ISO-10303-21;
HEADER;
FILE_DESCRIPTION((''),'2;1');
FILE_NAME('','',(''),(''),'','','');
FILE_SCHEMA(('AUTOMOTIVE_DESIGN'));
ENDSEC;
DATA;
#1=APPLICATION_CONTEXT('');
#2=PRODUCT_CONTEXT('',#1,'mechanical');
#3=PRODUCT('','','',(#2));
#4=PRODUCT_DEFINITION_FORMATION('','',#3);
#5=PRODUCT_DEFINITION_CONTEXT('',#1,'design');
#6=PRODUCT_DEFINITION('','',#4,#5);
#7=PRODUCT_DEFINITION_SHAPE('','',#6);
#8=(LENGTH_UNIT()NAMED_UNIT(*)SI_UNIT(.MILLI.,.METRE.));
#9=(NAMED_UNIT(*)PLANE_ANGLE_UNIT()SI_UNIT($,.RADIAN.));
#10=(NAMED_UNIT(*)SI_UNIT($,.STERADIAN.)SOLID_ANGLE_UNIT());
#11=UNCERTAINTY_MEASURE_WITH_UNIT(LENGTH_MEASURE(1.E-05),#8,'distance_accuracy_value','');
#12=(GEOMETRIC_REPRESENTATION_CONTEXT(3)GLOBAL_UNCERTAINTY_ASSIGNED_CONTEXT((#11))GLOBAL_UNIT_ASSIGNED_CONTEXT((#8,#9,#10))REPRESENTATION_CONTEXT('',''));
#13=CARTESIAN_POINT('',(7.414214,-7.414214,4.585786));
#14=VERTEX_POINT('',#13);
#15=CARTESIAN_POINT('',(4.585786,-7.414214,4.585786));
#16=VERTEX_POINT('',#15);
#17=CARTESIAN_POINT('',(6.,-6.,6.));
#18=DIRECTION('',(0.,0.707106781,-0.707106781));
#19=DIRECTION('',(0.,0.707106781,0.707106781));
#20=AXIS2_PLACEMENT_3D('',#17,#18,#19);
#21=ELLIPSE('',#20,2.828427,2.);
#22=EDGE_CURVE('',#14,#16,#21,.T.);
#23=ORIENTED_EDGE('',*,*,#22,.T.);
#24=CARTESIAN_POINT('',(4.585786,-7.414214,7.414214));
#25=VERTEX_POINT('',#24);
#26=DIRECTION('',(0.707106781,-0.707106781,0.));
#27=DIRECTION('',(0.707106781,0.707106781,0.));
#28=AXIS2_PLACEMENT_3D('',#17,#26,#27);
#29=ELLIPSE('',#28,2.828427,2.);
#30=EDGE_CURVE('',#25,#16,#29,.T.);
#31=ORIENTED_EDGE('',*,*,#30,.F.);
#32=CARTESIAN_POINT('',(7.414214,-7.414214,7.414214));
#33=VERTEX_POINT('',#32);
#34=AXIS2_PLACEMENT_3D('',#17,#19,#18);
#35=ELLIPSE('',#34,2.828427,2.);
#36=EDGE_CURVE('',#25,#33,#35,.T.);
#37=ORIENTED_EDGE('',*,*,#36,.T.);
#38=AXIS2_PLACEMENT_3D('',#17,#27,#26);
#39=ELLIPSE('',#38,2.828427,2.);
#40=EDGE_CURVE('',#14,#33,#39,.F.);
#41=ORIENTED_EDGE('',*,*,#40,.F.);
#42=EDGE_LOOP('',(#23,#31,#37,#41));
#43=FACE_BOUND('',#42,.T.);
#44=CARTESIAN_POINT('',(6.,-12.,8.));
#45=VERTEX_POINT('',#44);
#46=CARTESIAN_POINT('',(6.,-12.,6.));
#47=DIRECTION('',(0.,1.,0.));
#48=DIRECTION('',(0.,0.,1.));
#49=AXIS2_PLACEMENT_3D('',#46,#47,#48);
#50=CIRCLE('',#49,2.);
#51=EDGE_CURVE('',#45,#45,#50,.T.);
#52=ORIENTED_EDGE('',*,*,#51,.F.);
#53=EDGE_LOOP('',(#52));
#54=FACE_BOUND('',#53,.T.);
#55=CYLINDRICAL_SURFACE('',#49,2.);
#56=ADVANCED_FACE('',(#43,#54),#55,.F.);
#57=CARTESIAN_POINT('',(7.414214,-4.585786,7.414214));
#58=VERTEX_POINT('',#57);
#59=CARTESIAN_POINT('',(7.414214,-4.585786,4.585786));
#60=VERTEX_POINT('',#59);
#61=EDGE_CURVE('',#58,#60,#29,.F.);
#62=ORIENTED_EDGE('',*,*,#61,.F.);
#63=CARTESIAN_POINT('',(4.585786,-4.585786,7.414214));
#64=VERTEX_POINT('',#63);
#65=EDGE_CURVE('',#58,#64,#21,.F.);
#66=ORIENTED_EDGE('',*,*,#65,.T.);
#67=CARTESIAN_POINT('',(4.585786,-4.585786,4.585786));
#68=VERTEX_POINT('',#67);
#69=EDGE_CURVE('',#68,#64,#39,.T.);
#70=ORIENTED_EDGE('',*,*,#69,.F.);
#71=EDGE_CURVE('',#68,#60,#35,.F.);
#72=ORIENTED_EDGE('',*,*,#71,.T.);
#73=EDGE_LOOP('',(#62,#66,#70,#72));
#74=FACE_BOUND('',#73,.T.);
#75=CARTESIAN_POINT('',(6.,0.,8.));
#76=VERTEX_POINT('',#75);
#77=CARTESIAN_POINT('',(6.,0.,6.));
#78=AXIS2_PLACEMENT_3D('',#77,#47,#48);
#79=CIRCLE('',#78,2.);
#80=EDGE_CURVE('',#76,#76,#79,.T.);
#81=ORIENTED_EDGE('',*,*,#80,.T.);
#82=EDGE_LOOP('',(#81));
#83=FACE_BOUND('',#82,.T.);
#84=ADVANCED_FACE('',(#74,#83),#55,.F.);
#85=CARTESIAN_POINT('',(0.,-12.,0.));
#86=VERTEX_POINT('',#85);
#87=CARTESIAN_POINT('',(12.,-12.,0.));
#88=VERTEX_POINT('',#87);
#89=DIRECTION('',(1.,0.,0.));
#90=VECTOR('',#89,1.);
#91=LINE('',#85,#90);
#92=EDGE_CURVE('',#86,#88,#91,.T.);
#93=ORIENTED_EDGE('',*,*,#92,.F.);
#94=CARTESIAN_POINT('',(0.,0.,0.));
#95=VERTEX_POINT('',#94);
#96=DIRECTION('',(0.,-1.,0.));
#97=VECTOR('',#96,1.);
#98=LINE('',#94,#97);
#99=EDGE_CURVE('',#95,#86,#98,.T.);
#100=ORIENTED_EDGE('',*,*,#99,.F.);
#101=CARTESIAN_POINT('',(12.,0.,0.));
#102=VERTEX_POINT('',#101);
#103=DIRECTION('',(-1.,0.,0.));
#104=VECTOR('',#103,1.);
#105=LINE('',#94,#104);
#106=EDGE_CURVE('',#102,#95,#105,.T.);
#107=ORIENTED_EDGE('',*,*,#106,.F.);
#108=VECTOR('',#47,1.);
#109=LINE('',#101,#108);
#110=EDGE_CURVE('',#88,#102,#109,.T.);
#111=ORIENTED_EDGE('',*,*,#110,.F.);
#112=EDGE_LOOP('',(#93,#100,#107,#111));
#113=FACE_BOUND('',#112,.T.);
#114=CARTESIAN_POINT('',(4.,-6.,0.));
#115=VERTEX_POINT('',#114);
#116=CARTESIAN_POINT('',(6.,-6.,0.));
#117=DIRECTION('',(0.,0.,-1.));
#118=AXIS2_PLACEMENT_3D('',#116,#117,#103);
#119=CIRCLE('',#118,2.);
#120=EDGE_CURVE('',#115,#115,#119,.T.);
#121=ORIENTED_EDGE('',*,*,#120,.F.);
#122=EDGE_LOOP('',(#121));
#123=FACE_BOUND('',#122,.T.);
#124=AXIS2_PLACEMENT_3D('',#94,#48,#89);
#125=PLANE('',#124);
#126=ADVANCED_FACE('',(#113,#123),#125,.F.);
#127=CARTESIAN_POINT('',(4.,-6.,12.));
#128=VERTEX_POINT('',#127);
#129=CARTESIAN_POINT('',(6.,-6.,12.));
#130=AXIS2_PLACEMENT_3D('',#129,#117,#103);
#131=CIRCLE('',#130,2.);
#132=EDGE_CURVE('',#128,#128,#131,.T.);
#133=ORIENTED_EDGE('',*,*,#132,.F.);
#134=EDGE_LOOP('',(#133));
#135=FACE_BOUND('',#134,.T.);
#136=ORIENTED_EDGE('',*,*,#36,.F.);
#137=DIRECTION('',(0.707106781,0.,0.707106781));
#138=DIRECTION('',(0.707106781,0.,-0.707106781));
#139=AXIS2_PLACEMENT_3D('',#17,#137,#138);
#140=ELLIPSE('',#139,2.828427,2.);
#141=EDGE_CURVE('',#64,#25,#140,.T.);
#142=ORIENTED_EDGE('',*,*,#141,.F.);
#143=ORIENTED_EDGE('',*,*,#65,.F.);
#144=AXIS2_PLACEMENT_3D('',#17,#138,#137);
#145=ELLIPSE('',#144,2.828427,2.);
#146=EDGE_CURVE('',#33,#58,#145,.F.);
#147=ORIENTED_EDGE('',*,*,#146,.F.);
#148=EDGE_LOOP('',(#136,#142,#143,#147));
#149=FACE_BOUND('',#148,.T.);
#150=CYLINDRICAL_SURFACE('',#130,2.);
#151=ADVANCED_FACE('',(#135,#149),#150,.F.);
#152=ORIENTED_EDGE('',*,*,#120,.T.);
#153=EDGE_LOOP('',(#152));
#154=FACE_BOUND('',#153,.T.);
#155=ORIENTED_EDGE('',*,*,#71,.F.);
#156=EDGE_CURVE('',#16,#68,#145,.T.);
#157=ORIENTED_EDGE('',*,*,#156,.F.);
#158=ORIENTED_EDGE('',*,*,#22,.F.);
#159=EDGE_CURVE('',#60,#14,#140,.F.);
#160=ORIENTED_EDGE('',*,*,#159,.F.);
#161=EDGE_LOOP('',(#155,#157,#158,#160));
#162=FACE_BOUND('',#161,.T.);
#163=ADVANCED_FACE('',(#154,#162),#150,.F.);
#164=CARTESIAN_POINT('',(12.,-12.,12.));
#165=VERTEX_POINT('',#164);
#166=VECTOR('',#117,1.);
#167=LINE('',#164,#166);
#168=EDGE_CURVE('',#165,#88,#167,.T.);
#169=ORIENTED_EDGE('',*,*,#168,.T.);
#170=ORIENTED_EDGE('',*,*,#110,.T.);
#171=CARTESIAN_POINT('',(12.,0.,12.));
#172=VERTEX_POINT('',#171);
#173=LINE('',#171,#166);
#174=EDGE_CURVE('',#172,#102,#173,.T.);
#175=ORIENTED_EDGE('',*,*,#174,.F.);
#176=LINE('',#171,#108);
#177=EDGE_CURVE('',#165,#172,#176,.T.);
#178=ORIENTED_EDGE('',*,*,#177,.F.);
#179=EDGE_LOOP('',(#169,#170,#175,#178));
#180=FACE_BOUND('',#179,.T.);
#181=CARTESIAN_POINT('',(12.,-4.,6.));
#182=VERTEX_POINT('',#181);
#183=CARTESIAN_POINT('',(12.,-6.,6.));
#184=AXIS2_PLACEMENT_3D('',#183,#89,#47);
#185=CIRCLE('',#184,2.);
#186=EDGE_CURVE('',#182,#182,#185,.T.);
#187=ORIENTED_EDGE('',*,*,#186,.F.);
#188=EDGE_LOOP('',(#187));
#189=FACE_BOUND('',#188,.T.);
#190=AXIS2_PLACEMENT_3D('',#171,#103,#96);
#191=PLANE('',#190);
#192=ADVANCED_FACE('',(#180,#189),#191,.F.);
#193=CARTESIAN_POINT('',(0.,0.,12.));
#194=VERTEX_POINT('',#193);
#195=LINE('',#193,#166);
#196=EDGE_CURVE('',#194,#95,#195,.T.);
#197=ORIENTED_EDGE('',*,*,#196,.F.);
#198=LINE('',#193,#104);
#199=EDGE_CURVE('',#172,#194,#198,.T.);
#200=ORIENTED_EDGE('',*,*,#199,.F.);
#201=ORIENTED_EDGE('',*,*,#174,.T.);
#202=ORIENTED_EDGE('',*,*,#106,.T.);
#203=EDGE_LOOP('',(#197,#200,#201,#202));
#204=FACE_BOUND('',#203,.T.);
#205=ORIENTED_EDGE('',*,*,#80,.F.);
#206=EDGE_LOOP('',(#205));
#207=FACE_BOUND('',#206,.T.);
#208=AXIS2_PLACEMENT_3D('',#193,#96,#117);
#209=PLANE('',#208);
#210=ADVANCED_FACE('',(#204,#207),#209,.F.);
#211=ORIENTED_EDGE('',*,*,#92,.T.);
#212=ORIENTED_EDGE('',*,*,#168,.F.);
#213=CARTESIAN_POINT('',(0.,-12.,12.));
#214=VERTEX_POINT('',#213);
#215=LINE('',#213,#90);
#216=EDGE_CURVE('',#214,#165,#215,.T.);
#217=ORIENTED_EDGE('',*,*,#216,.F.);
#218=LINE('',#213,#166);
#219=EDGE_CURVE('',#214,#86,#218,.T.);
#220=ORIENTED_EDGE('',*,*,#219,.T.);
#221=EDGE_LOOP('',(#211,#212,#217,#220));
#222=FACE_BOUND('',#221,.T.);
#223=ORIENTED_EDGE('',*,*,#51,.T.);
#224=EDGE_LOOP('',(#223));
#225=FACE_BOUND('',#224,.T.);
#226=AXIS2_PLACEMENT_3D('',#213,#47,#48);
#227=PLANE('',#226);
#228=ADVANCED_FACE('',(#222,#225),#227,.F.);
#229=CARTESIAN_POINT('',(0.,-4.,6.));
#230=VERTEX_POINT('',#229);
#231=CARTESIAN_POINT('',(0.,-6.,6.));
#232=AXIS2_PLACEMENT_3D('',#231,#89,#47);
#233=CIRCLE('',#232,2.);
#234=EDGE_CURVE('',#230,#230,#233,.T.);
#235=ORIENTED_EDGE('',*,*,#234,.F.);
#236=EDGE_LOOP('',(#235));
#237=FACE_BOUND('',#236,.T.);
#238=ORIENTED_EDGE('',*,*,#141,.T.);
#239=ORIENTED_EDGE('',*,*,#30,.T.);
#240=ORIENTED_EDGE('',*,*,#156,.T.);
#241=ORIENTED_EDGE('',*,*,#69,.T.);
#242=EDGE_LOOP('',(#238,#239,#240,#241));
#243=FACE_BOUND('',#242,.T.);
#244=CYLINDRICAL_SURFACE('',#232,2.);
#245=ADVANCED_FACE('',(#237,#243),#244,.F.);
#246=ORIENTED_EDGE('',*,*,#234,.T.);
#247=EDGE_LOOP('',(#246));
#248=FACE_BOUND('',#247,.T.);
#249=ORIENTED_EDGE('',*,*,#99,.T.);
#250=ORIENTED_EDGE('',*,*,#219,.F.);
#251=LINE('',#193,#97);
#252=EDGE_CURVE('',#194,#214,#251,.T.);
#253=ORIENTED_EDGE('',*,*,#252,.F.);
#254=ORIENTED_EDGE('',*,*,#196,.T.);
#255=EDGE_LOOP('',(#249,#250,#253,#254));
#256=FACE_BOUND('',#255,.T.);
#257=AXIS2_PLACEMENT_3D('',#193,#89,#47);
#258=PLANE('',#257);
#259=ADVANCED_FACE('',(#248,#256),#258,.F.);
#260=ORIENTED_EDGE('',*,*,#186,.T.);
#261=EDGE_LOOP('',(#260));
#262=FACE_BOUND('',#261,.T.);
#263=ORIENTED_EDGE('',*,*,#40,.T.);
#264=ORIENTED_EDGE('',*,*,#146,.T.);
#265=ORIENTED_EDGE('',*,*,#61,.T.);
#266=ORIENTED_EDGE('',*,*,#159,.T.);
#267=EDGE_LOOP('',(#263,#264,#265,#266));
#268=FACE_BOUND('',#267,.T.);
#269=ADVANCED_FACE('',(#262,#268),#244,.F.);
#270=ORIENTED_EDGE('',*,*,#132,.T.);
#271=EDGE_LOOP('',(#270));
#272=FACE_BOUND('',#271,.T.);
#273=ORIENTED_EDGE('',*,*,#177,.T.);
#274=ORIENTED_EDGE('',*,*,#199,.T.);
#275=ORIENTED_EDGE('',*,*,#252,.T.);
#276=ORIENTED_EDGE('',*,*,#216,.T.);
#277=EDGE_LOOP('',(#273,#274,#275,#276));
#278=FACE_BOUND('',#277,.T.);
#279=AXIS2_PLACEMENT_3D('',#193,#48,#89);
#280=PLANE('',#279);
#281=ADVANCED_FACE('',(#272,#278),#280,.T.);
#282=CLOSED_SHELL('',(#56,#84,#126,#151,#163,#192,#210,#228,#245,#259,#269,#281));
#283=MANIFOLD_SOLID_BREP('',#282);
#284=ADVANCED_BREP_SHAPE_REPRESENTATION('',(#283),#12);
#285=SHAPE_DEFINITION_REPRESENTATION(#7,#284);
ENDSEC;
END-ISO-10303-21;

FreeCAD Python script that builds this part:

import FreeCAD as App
import Part
import Sketcher
from FreeCAD import Vector

doc = App.newDocument("Part")
body = doc.addObject("PartDesign::Body", "Body")

# Sketch on XY plane
sketch1 = body.newObject("Sketcher::SketchObject", "Sketch")
sketch1.AttachmentSupport = (doc.getObject("XY_Plane"), [""])
sketch1.MapMode = "FlatFace"
sketch1.addGeometry([
    Part.LineSegment(Vector(0, 0, 0), Vector(0, -12, 0)),
    Part.LineSegment(Vector(0, -12, 0), Vector(12, -12, 0)),
    Part.LineSegment(Vector(12, -12, 0), Vector(12, 0, 0)),
    Part.LineSegment(Vector(12, 0, 0), Vector(0, 0, 0)),
], False)
sketch1.addConstraint([
    Sketcher.Constraint("Coincident", 0, 2, 1, 1),
    Sketcher.Constraint("Coincident", 1, 2, 2, 1),
    Sketcher.Constraint("Coincident", 2, 2, 3, 1),
    Sketcher.Constraint("Coincident", 3, 2, 0, 1),
    Sketcher.Constraint("Vertical", 0),
    Sketcher.Constraint("Horizontal", 1),
    Sketcher.Constraint("Vertical", 2),
    Sketcher.Constraint("Horizontal", 3),
    Sketcher.Constraint("Coincident", 3, 2, -1, 1),
    Sketcher.Constraint("Equal", 3, 0),
    Sketcher.Constraint("DistanceX", 1, 1, 1, 2, 12.0),
])
pad1 = body.newObject("PartDesign::Pad", "Pad")
pad1.Profile = sketch1
pad1.Length = 12

# Sketch on YZ plane
sketch2 = body.newObject("Sketcher::SketchObject", "Sketch001")
sketch2.AttachmentSupport = (doc.getObject("YZ_Plane"), [""])
sketch2.MapMode = "FlatFace"
sketch2.AttachmentOffset = App.Placement(Vector(0, 0, 12), App.Rotation())
sketch2.addGeometry(Part.Circle(Vector(-6, 6, 0), Vector(0, 0, 1), 2), False)
sketch2.addConstraint([
    Sketcher.Constraint("Diameter", 0, 4.0),
    Sketcher.Constraint("DistanceX", 0, 3, -1, 1, 6.0),
    Sketcher.Constraint("DistanceY", -1, 1, 0, 3, 6.0),
])
pocket1 = body.newObject("PartDesign::Pocket", "Pocket")
pocket1.Profile = sketch2
pocket1.Type = "ThroughAll"

# Sketch on XZ plane
sketch3 = body.newObject("Sketcher::SketchObject", "Sketch002")
sketch3.AttachmentSupport = (doc.getObject("XZ_Plane"), [""])
sketch3.MapMode = "FlatFace"
sketch3.addGeometry(Part.Circle(Vector(6, 6, 0), Vector(0, 0, 1), 2), False)
sketch3.addConstraint([
    Sketcher.Constraint("Diameter", 0, 4.0),
    Sketcher.Constraint("DistanceX", -1, 1, 0, 3, 6.0),
    Sketcher.Constraint("DistanceY", -1, 1, 0, 3, 6.0),
])
pocket2 = body.newObject("PartDesign::Pocket", "Pocket001")
pocket2.Profile = sketch3
pocket2.Type = "ThroughAll"
pocket2.Reversed = True

# Sketch on XY plane
sketch4 = body.newObject("Sketcher::SketchObject", "Sketch003")
sketch4.AttachmentSupport = (doc.getObject("XY_Plane"), [""])
sketch4.MapMode = "FlatFace"
sketch4.addGeometry(Part.Circle(Vector(6, -6, 0), Vector(0, 0, 1), 2), False)
sketch4.addConstraint([
    Sketcher.Constraint("Diameter", 0, 4.0),
    Sketcher.Constraint("DistanceX", -1, 1, 0, 3, 6.0),
    Sketcher.Constraint("DistanceY", 0, 3, -1, 1, 6.0),
])
pocket3 = body.newObject("PartDesign::Pocket", "Pocket002")
pocket3.Profile = sketch4
pocket3.Type = "ThroughAll"
pocket3.Reversed = True

doc.recompute()
